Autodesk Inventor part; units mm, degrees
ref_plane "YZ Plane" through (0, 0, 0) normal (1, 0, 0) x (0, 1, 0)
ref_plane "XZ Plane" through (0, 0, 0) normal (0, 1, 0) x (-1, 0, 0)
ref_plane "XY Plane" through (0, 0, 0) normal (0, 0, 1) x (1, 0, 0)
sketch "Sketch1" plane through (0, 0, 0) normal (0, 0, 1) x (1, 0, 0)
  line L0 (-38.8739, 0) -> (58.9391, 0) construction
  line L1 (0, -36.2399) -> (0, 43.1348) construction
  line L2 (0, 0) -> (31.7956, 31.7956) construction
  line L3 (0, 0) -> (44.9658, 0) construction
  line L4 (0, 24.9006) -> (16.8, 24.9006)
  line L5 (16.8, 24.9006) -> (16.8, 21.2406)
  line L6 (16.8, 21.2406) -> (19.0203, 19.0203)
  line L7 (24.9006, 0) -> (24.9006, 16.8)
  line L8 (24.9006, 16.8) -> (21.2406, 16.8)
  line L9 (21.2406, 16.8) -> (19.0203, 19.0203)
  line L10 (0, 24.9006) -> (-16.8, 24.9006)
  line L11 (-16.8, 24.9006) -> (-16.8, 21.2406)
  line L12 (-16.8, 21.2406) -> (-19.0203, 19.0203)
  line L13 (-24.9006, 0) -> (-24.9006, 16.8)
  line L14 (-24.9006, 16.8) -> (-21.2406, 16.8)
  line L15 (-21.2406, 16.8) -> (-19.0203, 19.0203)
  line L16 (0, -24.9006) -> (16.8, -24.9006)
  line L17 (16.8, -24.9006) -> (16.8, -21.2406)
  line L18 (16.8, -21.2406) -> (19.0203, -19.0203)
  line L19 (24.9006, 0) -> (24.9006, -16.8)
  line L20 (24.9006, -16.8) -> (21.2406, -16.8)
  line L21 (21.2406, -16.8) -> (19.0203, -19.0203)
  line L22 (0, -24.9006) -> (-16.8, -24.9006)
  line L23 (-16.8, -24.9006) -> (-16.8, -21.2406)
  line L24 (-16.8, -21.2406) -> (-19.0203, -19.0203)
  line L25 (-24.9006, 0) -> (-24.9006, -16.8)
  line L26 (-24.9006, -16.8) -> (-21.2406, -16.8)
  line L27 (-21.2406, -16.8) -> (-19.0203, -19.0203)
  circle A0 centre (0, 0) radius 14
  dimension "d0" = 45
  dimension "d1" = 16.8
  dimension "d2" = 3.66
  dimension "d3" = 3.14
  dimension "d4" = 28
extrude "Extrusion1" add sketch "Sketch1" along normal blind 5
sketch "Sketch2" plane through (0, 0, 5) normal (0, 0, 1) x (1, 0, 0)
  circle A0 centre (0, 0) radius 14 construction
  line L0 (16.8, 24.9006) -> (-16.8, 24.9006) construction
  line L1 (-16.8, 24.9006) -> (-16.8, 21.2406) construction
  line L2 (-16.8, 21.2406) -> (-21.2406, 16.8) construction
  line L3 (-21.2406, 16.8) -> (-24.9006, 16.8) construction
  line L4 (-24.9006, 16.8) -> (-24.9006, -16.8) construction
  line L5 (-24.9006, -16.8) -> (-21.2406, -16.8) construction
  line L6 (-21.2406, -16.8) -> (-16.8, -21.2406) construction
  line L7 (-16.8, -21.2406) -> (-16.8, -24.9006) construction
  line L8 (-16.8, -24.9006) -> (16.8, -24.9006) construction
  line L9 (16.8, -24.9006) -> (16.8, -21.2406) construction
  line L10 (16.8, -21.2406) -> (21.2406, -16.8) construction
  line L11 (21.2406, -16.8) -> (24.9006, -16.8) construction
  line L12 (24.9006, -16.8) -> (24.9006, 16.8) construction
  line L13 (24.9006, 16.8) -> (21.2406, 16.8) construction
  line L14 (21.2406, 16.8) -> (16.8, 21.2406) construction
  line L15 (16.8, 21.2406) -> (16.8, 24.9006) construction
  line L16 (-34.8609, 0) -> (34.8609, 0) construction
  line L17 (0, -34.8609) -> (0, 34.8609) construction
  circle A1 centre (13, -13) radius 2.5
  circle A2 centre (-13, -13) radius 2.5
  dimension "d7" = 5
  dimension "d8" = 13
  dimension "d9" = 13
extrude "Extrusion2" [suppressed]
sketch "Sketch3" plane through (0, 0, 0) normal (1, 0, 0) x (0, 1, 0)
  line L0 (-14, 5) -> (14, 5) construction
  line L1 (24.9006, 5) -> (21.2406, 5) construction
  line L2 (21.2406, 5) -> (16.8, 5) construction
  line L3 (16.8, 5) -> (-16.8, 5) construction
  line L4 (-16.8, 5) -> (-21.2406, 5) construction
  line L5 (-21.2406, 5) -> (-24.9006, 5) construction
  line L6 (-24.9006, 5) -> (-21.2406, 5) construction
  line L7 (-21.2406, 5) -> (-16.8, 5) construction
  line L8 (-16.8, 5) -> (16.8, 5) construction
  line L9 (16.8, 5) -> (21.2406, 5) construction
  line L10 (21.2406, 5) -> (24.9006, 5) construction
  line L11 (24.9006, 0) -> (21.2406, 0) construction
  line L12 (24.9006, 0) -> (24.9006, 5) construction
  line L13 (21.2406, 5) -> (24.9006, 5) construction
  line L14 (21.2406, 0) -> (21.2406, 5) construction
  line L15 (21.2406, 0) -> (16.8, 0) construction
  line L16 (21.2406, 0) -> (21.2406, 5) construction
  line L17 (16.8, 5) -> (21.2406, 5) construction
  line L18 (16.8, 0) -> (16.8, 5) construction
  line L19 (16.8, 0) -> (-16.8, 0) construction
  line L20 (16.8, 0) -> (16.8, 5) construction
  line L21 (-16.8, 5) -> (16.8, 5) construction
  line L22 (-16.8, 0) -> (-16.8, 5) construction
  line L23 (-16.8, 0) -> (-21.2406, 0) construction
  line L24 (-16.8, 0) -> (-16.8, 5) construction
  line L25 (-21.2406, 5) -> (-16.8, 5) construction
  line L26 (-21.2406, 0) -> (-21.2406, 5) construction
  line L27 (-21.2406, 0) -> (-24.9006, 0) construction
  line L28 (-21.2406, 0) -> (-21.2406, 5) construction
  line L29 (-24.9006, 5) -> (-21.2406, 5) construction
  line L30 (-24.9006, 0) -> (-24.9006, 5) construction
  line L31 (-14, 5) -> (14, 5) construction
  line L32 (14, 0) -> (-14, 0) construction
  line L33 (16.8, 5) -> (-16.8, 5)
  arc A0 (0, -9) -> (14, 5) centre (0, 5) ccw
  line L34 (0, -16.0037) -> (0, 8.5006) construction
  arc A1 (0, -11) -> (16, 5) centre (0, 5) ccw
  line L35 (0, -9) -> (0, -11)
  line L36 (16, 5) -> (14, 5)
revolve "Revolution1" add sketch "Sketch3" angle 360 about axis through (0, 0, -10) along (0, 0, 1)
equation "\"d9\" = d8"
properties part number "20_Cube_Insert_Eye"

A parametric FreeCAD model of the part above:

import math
import FreeCAD as App
import Part
import Sketcher
from FreeCAD import Vector
Q = App.Units.Quantity

doc = App.newDocument("Part")
params = doc.addObject("Spreadsheet::Sheet", "Params")
for row, (alias, value) in enumerate([
    ("sketch1_diameter", "28 mm"),
    ("sketch1_width", "3.66 mm"),
    ("sketch1_length", "6.28 mm"),
    ("pad1_length", "5 mm"),
    ("sketch2_radius", "16 mm"),
    ("sketch2_radius2", "14 mm"),
    ("revolution_angle", "360 deg"),
], start=1):
    params.set(f"A{row}", alias)
    params.set(f"B{row}", "=" + value)
    params.setAlias(f"B{row}", alias)

body = doc.addObject("PartDesign::Body", "Body")

# Sketch on XY plane
sketch1 = body.newObject("Sketcher::SketchObject", "Sketch")
sketch1.AttachmentSupport = (doc.getObject("XY_Plane"), [""])
sketch1.MapMode = "FlatFace"
sketch1.addGeometry([
    Part.LineSegment(Vector(16.8, 24.9, 0), Vector(-16.8, 24.9, 0)),  # 0
    Part.LineSegment(Vector(-16.8, 24.9, 0), Vector(-16.8, 21.2, 0)),  # 1
    Part.LineSegment(Vector(-16.8, 21.2, 0), Vector(-21.2, 16.8, 0)),  # 2
    Part.LineSegment(Vector(-21.2, 16.8, 0), Vector(-24.9, 16.8, 0)),  # 3
    Part.LineSegment(Vector(-24.9, 16.8, 0), Vector(-24.9, -16.8, 0)),  # 4
    Part.LineSegment(Vector(-24.9, -16.8, 0), Vector(-21.2, -16.8, 0)),  # 5
    Part.LineSegment(Vector(-21.2, -16.8, 0), Vector(-16.8, -21.2, 0)),  # 6
    Part.LineSegment(Vector(-16.8, -21.2, 0), Vector(-16.8, -24.9, 0)),  # 7
    Part.LineSegment(Vector(-16.8, -24.9, 0), Vector(16.8, -24.9, 0)),  # 8
    Part.LineSegment(Vector(16.8, -24.9, 0), Vector(16.8, -21.2, 0)),  # 9
    Part.LineSegment(Vector(16.8, -21.2, 0), Vector(21.2, -16.8, 0)),  # 10
    Part.LineSegment(Vector(21.2, -16.8, 0), Vector(24.9, -16.8, 0)),  # 11
    Part.LineSegment(Vector(24.9, -16.8, 0), Vector(24.9, 16.8, 0)),  # 12
    Part.LineSegment(Vector(24.9, 16.8, 0), Vector(21.2, 16.8, 0)),  # 13
    Part.LineSegment(Vector(21.2, 16.8, 0), Vector(16.8, 21.2, 0)),  # 14
    Part.LineSegment(Vector(16.8, 21.2, 0), Vector(16.8, 24.9, 0)),  # 15
    Part.Circle(Vector(0, 0, 0), Vector(0, 0, 1), 14),  # 16
], False)
sketch1.addConstraint([
    Sketcher.Constraint("Coincident", 0, 2, 1, 1),
    Sketcher.Constraint("Coincident", 1, 2, 2, 1),
    Sketcher.Constraint("Coincident", 2, 2, 3, 1),
    Sketcher.Constraint("Coincident", 3, 2, 4, 1),
    Sketcher.Constraint("Coincident", 4, 2, 5, 1),
    Sketcher.Constraint("Coincident", 5, 2, 6, 1),
    Sketcher.Constraint("Coincident", 6, 2, 7, 1),
    Sketcher.Constraint("Coincident", 7, 2, 8, 1),
    Sketcher.Constraint("Coincident", 8, 2, 9, 1),
    Sketcher.Constraint("Coincident", 9, 2, 10, 1),
    Sketcher.Constraint("Coincident", 10, 2, 11, 1),
    Sketcher.Constraint("Coincident", 11, 2, 12, 1),
    Sketcher.Constraint("Coincident", 12, 2, 13, 1),
    Sketcher.Constraint("Coincident", 13, 2, 14, 1),
    Sketcher.Constraint("Coincident", 14, 2, 15, 1),
    Sketcher.Constraint("Coincident", 15, 2, 0, 1),
    Sketcher.Constraint("Horizontal", 0),
    Sketcher.Constraint("Vertical", 1),
    Sketcher.Constraint("Horizontal", 3),
    Sketcher.Constraint("Vertical", 4),
    Sketcher.Constraint("Horizontal", 5),
    Sketcher.Constraint("Vertical", 7),
    Sketcher.Constraint("Horizontal", 8),
    Sketcher.Constraint("Vertical", 9),
    Sketcher.Constraint("Horizontal", 11),
    Sketcher.Constraint("Vertical", 12),
    Sketcher.Constraint("Horizontal", 13),
    Sketcher.Constraint("Vertical", 15),
    Sketcher.Constraint("Coincident", 16, 3, -1, 1),
    Sketcher.Constraint("Symmetric", 0, 2, 8, 2, -1, 1),
    Sketcher.Constraint("Symmetric", 2, 2, 10, 2, -1, 1),
    Sketcher.Constraint("Symmetric", 4, 2, 12, 2, -1, 1),
    Sketcher.Constraint("Symmetric", 6, 2, 14, 2, -1, 1),
    Sketcher.Constraint("Symmetric", 6, 2, 9, 2, -2),
    Sketcher.Constraint("Symmetric", 5, 2, 10, 2, -2),
    Sketcher.Constraint("Perpendicular", 2, 6),
    Sketcher.Constraint("Perpendicular", 6, 10),
    Sketcher.Constraint("Perpendicular", 10, 14),
    Sketcher.Constraint("Equal", 13, 1),
    Sketcher.Constraint("Equal", 8, 4),
    Sketcher.Constraint("Diameter", 16, Q("28 mm")),
    Sketcher.Constraint("DistanceX", 3, 2, 3, 1, Q("3.66 mm")),
    Sketcher.Constraint("DistanceX", 0, 2, -1, 1, Q("16.8 mm")),
    Sketcher.Constraint("Distance", 2, Q("6.28 mm")),
])
sketch1.setExpression("Constraints[40]", "Params.sketch1_diameter")
sketch1.setExpression("Constraints[41]", "Params.sketch1_width")
sketch1.setExpression("Constraints[43]", "Params.sketch1_length")
pad1 = body.newObject("PartDesign::Pad", "Pad")
pad1.Profile = sketch1
pad1.setExpression("Length", "Params.pad1_length")

# Sketch on YZ plane
sketch2 = body.newObject("Sketcher::SketchObject", "Sketch001")
sketch2.AttachmentSupport = (doc.getObject("YZ_Plane"), [""])
sketch2.MapMode = "FlatFace"
sketch2.addGeometry([
    Part.ArcOfCircle(Part.Circle(Vector(0, 5, 0), Vector(0, 0, 1), 16), math.radians(-90), math.radians(0)),
    Part.LineSegment(Vector(16, 5, 0), Vector(14, 5, 0)),
    Part.ArcOfCircle(Part.Circle(Vector(0, 5, 0), Vector(0, 0, 1), 14), math.radians(-90), math.radians(0)),
    Part.LineSegment(Vector(0, -9, 0), Vector(0, -11, 0)),
], False)
sketch2.addConstraint([
    Sketcher.Constraint("Coincident", 0, 2, 1, 1),
    Sketcher.Constraint("Coincident", 1, 2, 2, 2),
    Sketcher.Constraint("Coincident", 2, 1, 3, 1),
    Sketcher.Constraint("Coincident", 3, 2, 0, 1),
    Sketcher.Constraint("Horizontal", 1),
    Sketcher.Constraint("Vertical", 3),
    Sketcher.Constraint("Coincident", 2, 3, 0, 3),
    Sketcher.Constraint("PointOnObject", 0, 3, -2),
    Sketcher.Constraint("PointOnObject", 2, 1, -2),
    Sketcher.Constraint("Horizontal", 2, 3, 0, 2),
    Sketcher.Constraint("Radius", 0, Q("16 mm")),
    Sketcher.Constraint("Radius", 2, Q("14 mm")),
    Sketcher.Constraint("DistanceY", -1, 1, 0, 3, Q("5 mm")),
])
sketch2.setExpression("Constraints[10]", "Params.sketch2_radius")
sketch2.setExpression("Constraints[11]", "Params.sketch2_radius2")
revolution = body.newObject("PartDesign::Revolution", "Revolution")
revolution.Profile = sketch2
revolution.ReferenceAxis = (sketch2, ["V_Axis"])
revolution.setExpression("Angle", "Params.revolution_angle")

doc.recompute()
